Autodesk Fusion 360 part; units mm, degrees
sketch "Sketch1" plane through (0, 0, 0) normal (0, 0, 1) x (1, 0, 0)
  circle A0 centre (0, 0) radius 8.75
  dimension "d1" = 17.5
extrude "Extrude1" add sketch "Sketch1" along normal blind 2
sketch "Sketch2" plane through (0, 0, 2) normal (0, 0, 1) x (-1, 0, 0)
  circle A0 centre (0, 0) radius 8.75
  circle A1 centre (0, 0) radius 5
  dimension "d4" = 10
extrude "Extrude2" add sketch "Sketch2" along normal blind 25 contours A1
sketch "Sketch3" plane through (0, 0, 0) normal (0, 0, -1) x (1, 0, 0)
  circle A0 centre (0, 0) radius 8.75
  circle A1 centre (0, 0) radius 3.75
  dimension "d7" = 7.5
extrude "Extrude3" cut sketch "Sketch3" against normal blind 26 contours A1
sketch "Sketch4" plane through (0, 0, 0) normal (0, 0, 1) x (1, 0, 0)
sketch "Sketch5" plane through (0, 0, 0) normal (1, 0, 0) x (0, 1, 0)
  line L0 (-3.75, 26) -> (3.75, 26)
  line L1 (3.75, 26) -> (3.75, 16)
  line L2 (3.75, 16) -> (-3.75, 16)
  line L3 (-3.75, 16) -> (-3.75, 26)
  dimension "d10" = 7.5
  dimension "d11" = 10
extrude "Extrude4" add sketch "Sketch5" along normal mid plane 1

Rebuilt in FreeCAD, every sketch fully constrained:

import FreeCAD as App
import Part
import Sketcher


def add_polygon(sketch, points):
    """Adds a closed chain of lines whose ends are joined by coincident constraints."""
    first, n = sketch.GeometryCount, len(points)
    for a, b in zip(points, points[1:] + points[:1]):
        sketch.addGeometry(Part.LineSegment(App.Vector(*a, 0), App.Vector(*b, 0)), False)
    for i in range(n):
        sketch.addConstraint(Sketcher.Constraint("Coincident", first + i, 2, first + (i + 1) % n, 1))

doc = App.newDocument("Part")
body = doc.addObject("PartDesign::Body", "Body")

sketch1 = body.newObject("Sketcher::SketchObject", "Sketch")
sketch1.AttachmentSupport = (doc.getObject("XY_Plane"), [""])
sketch1.MapMode = "FlatFace"
sketch1.addGeometry(Part.Circle(App.Vector(0, 0, 0), App.Vector(0, 0, 1), 9), False)
sketch1.addConstraint([
    Sketcher.Constraint("Coincident", 0, 3, -1, 1),
    Sketcher.Constraint("Diameter", 0, 17.5),
])
pad1 = body.newObject("PartDesign::Pad", "Pad")
pad1.Profile = sketch1
pad1.Length = 2

sketch2 = body.newObject("Sketcher::SketchObject", "Sketch001")
sketch2.AttachmentSupport = (doc.getObject("XY_Plane"), [""])
sketch2.MapMode = "FlatFace"
sketch2.AttachmentOffset = App.Placement(App.Vector(0, 0, 2), App.Rotation())
sketch2.addGeometry(Part.Circle(App.Vector(0, 0, 0), App.Vector(0, 0, 1), 5), False)
sketch2.addConstraint([
    Sketcher.Constraint("Coincident", 0, 3, -1, 1),
    Sketcher.Constraint("Diameter", 0, 10.0),
])
pad2 = body.newObject("PartDesign::Pad", "Pad001")
pad2.Profile = sketch2
pad2.Length = 25

sketch3 = body.newObject("Sketcher::SketchObject", "Sketch002")
sketch3.AttachmentSupport = (doc.getObject("XY_Plane"), [""])
sketch3.MapMode = "FlatFace"
sketch3.addGeometry(Part.Circle(App.Vector(0, 0, 0), App.Vector(0, 0, 1), 3.8), False)
sketch3.addConstraint([
    Sketcher.Constraint("Coincident", 0, 3, -1, 1),
    Sketcher.Constraint("Diameter", 0, 7.5),
])
pocket1 = body.newObject("PartDesign::Pocket", "Pocket")
pocket1.Profile = sketch3
pocket1.Length = 26
pocket1.Reversed = True

sketch4 = body.newObject("Sketcher::SketchObject", "Sketch003")
sketch4.AttachmentSupport = (doc.getObject("YZ_Plane"), [""])
sketch4.MapMode = "FlatFace"
add_polygon(sketch4, [(4, 26), (-4, 26), (-4, 16), (4, 16)])
sketch4.addConstraint([
    Sketcher.Constraint("Horizontal", 0),
    Sketcher.Constraint("Vertical", 1),
    Sketcher.Constraint("Horizontal", 2),
    Sketcher.Constraint("Vertical", 3),
    Sketcher.Constraint("DistanceY", 1, 2, 1, 1, 10.0),
    Sketcher.Constraint("DistanceX", 0, 2, 0, 1, 7.5),
    Sketcher.Constraint("DistanceY", -1, 1, 0, 2, 26.0),
    Sketcher.Constraint("DistanceX", 0, 2, -1, 1, 3.75),
])
pad3 = body.newObject("PartDesign::Pad", "Pad002")
pad3.Profile = sketch4
pad3.Length = 1
pad3.Midplane = True

doc.recompute()
